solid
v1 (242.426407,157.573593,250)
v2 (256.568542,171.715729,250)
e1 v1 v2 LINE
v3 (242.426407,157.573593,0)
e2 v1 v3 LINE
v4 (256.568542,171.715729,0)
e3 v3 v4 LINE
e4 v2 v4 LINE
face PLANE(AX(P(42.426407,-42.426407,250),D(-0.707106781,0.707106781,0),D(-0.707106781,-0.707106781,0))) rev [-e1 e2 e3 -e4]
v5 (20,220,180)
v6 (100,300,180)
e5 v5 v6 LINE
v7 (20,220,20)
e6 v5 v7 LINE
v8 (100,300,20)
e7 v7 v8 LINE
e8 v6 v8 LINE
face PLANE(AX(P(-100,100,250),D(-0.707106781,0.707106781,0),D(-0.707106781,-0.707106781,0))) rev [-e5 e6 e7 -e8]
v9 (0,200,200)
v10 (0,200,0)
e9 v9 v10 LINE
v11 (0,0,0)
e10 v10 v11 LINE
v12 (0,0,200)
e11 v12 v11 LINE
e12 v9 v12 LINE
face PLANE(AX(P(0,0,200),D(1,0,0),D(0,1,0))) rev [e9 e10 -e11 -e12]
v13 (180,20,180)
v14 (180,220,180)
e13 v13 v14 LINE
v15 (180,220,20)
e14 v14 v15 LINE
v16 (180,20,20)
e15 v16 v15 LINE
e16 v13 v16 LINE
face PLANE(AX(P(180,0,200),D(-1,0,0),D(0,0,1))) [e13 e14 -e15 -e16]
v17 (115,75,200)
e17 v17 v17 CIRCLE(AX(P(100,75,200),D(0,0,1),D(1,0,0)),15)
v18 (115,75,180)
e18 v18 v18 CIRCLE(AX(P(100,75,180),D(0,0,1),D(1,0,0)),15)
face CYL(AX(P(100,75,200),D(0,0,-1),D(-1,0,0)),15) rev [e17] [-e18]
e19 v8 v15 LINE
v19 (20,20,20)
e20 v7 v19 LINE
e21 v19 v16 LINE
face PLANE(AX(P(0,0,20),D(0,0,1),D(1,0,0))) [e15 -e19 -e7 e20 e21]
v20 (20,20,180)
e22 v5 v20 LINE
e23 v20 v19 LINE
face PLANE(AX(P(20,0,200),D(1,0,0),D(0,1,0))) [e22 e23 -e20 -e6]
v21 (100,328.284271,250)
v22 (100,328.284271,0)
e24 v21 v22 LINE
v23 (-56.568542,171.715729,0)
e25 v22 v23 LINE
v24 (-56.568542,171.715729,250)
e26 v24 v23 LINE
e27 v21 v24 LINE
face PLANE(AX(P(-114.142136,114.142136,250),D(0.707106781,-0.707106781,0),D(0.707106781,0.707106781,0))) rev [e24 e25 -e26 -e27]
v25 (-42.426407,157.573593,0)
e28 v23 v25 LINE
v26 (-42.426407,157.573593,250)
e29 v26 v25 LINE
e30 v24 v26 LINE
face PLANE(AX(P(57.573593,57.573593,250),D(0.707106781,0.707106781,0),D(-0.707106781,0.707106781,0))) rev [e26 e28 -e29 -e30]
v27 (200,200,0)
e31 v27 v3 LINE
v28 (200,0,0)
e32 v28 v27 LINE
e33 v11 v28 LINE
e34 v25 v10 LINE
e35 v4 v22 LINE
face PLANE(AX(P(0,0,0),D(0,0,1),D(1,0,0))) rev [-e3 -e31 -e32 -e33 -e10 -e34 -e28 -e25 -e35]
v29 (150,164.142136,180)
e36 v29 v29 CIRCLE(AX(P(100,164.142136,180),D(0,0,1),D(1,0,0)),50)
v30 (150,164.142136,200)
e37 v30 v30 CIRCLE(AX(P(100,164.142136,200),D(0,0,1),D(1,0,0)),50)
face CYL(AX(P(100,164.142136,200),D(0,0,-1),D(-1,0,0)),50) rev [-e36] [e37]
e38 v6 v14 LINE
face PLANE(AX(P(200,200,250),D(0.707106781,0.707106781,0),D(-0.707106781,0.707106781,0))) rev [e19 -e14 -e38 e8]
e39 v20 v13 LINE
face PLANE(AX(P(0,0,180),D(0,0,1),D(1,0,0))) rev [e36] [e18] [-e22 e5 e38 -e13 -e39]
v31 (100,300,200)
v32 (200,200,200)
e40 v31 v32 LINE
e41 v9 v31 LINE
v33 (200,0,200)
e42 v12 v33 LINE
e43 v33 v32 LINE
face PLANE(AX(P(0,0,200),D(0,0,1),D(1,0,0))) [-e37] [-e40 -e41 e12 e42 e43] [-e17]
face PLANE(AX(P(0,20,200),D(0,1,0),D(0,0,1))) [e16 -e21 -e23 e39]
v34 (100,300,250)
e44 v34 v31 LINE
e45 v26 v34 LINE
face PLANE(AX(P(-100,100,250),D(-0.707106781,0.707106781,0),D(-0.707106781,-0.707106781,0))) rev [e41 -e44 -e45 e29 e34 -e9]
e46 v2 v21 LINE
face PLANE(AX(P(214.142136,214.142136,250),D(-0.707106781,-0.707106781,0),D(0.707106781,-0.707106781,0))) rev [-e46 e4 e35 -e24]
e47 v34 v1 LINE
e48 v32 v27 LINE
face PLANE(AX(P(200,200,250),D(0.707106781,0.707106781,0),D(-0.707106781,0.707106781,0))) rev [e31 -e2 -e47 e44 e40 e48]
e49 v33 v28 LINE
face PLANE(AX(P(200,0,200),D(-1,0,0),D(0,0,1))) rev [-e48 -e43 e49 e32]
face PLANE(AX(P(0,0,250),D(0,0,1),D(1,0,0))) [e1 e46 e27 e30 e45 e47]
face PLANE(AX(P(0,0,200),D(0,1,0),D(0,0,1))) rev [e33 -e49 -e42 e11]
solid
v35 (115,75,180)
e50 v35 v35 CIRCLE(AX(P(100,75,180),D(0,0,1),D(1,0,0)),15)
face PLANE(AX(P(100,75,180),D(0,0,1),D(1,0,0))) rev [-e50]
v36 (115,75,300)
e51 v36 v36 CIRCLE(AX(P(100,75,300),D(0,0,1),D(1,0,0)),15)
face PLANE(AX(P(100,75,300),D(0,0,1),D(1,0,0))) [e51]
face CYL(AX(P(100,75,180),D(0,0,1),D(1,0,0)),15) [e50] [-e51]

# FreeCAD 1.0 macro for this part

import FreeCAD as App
import Part
import Sketcher
Q = App.Units.Quantity


def add_polygon(sketch, points):
    """Adds a closed chain of lines whose ends are joined by coincident constraints."""
    first, n = sketch.GeometryCount, len(points)
    for a, b in zip(points, points[1:] + points[:1]):
        sketch.addGeometry(Part.LineSegment(App.Vector(*a, 0), App.Vector(*b, 0)), False)
    for i in range(n):
        sketch.addConstraint(Sketcher.Constraint("Coincident", first + i, 2, first + (i + 1) % n, 1))

doc = App.newDocument("Part")
body = doc.addObject("PartDesign::Body", "Body")

# Sketch on XY plane
sketch1 = body.newObject("Sketcher::SketchObject", "Sketch")
sketch1.AttachmentSupport = (doc.getObject("XY_Plane"), [""])
sketch1.MapMode = "FlatFace"
add_polygon(sketch1, [(100, 300), (20, 220), (20, 20), (180, 20), (180, 220)])  # lines 0-4
sketch1.addConstraint(Sketcher.Constraint("Vertical", 1))
sketch1.addConstraint(Sketcher.Constraint("Horizontal", 2))
sketch1.addConstraint(Sketcher.Constraint("Vertical", 3))
sketch1.addConstraint(Sketcher.Constraint("Perpendicular", 0, 4))
sketch1.addConstraint(Sketcher.Constraint("Horizontal", 0, 2, 3, 2))
sketch1.addConstraint(Sketcher.Constraint("Equal", 0, 4))
sketch1.addConstraint(Sketcher.Constraint("DistanceX", 2, 1, 2, 2, Q("160 mm")))
sketch1.addConstraint(Sketcher.Constraint("DistanceY", 1, 2, 1, 1, Q("200 mm")))
sketch1.addConstraint(Sketcher.Constraint("DistanceX", -1, 1, 0, 2, Q("20 mm")))
sketch1.addConstraint(Sketcher.Constraint("DistanceY", -1, 1, 0, 2, Q("220 mm")))
pad1 = body.newObject("PartDesign::Pad", "Pad")
pad1.Profile = sketch1
pad1.Length = 20

# Sketch on XY plane
sketch2 = body.newObject("Sketcher::SketchObject", "Sketch001")
sketch2.AttachmentSupport = (doc.getObject("XY_Plane"), [""])
sketch2.MapMode = "FlatFace"
add_polygon(sketch2, [(0, 200), (0, 0), (200, 0), (200, 200), (180, 220), (180, 20), (20, 20), (20, 220)])  # lines 0-7
sketch2.addConstraint(Sketcher.Constraint("Vertical", 0))
sketch2.addConstraint(Sketcher.Constraint("Horizontal", 1))
sketch2.addConstraint(Sketcher.Constraint("Vertical", 2))
sketch2.addConstraint(Sketcher.Constraint("Vertical", 4))
sketch2.addConstraint(Sketcher.Constraint("Horizontal", 5))
sketch2.addConstraint(Sketcher.Constraint("Vertical", 6))
sketch2.addConstraint(Sketcher.Constraint("Coincident", 0, 2, -1, 1))
sketch2.addConstraint(Sketcher.Constraint("Perpendicular", 3, 7))
sketch2.addConstraint(Sketcher.Constraint("Horizontal", 3, 2, 6, 2))
sketch2.addConstraint(Sketcher.Constraint("Horizontal", 2, 2, 7, 2))
sketch2.addConstraint(Sketcher.Constraint("Equal", 1, 0))
sketch2.addConstraint(Sketcher.Constraint("Equal", 2, 4))
sketch2.addConstraint(Sketcher.Constraint("Equal", 3, 7))
sketch2.addConstraint(Sketcher.Constraint("DistanceX", 1, 1, 1, 2, Q("200 mm")))
sketch2.addConstraint(Sketcher.Constraint("DistanceX", 5, 2, 5, 1, Q("160 mm")))
pad2 = body.newObject("PartDesign::Pad", "Pad001")
pad2.Profile = sketch2
pad2.Length = 200

# Sketch on XY plane
sketch3 = body.newObject("Sketcher::SketchObject", "Sketch002")
sketch3.AttachmentSupport = (doc.getObject("XY_Plane"), [""])
sketch3.MapMode = "FlatFace"
sketch3.AttachmentOffset = App.Placement(App.Vector(0, 0, 180), App.Rotation())
add_polygon(sketch3, [(100, 300), (20, 220), (20, 20), (180, 20), (180, 220)])  # lines 0-4
sketch3.addGeometry(Part.Circle(App.Vector(100, 75, 0), App.Vector(0, 0, 1), 15), False)  # 5
sketch3.addGeometry(Part.Circle(App.Vector(100, 164, 0), App.Vector(0, 0, 1), 50), False)  # 6
sketch3.addConstraint(Sketcher.Constraint("Vertical", 1))
sketch3.addConstraint(Sketcher.Constraint("Horizontal", 2))
sketch3.addConstraint(Sketcher.Constraint("Vertical", 3))
sketch3.addConstraint(Sketcher.Constraint("Perpendicular", 0, 4))
sketch3.addConstraint(Sketcher.Constraint("Horizontal", 0, 2, 3, 2))
sketch3.addConstraint(Sketcher.Constraint("Vertical", 5, 3, 6, 3))
sketch3.addConstraint(Sketcher.Constraint("Vertical", 6, 3, 4, 2))
sketch3.addConstraint(Sketcher.Constraint("Equal", 0, 4))
sketch3.addConstraint(Sketcher.Constraint("Diameter", 5, Q("30 mm")))
sketch3.addConstraint(Sketcher.Constraint("Diameter", 6, Q("100 mm")))
sketch3.addConstraint(Sketcher.Constraint("DistanceX", 2, 1, 2, 2, Q("160 mm")))
sketch3.addConstraint(Sketcher.Constraint("DistanceY", 1, 2, 1, 1, Q("200 mm")))
sketch3.addConstraint(Sketcher.Constraint("DistanceX", -1, 1, 5, 3, Q("100 mm")))
sketch3.addConstraint(Sketcher.Constraint("DistanceY", -1, 1, 5, 3, Q("75 mm")))
sketch3.addConstraint(Sketcher.Constraint("DistanceY", -1, 1, 0, 2, Q("220 mm")))
sketch3.addConstraint(Sketcher.Constraint("DistanceY", -1, 1, 6, 3, Q("164.142136 mm")))
pad3 = body.newObject("PartDesign::Pad", "Pad002")
pad3.Profile = sketch3
pad3.Length = 20

# Sketch on XY plane
sketch4 = body.newObject("Sketcher::SketchObject", "Sketch003")
sketch4.AttachmentSupport = (doc.getObject("XY_Plane"), [""])
sketch4.MapMode = "FlatFace"
add_polygon(sketch4, [(100, 300), (242, 158), (257, 172), (100, 328), (-57, 172), (-42, 158)])  # lines 0-5
sketch4.addConstraint(Sketcher.Constraint("Perpendicular", 0, 1))
sketch4.addConstraint(Sketcher.Constraint("Perpendicular", 1, 2))
sketch4.addConstraint(Sketcher.Constraint("Perpendicular", 2, 3))
sketch4.addConstraint(Sketcher.Constraint("Perpendicular", 3, 4))
sketch4.addConstraint(Sketcher.Constraint("Perpendicular", 4, 5))
sketch4.addConstraint(Sketcher.Constraint("Horizontal", 1, 2, 3, 2))
sketch4.addConstraint(Sketcher.Constraint("Horizontal", 0, 2, 4, 2))
sketch4.addConstraint(Sketcher.Constraint("Vertical", 2, 2, 5, 2))
sketch4.addConstraint(Sketcher.Constraint("Distance", 1, Q("20 mm")))
sketch4.addConstraint(Sketcher.Constraint("DistanceX", -1, 1, 2, 2, Q("100 mm")))
sketch4.addConstraint(Sketcher.Constraint("DistanceY", -1, 1, 5, 2, Q("300 mm")))
sketch4.addConstraint(Sketcher.Constraint("DistanceY", -1, 1, 1, 2, Q("171.715729 mm")))
pad4 = body.newObject("PartDesign::Pad", "Pad003")
pad4.Profile = sketch4
pad4.Length = 250
body2 = doc.addObject("PartDesign::Body", "Body001")

# Sketch on XY plane
sketch5 = body2.newObject("Sketcher::SketchObject", "Sketch004")
sketch5.AttachmentSupport = (doc.getObject("XY_Plane001"), [""])
sketch5.MapMode = "FlatFace"
sketch5.AttachmentOffset = App.Placement(App.Vector(0, 0, 200), App.Rotation())
sketch5.addGeometry(Part.Circle(App.Vector(100, 75, 0), App.Vector(0, 0, 1), 15), False)
sketch5.addConstraint(Sketcher.Constraint("Diameter", 0, Q("30 mm")))
sketch5.addConstraint(Sketcher.Constraint("DistanceX", -1, 1, 0, 3, Q("100 mm")))
sketch5.addConstraint(Sketcher.Constraint("DistanceY", -1, 1, 0, 3, Q("75 mm")))
pad5 = body2.newObject("PartDesign::Pad", "Pad004")
pad5.Profile = sketch5
pad5.Type = "TwoLengths"
pad5.Length = 100
pad5.Length2 = 20

doc.recompute()
